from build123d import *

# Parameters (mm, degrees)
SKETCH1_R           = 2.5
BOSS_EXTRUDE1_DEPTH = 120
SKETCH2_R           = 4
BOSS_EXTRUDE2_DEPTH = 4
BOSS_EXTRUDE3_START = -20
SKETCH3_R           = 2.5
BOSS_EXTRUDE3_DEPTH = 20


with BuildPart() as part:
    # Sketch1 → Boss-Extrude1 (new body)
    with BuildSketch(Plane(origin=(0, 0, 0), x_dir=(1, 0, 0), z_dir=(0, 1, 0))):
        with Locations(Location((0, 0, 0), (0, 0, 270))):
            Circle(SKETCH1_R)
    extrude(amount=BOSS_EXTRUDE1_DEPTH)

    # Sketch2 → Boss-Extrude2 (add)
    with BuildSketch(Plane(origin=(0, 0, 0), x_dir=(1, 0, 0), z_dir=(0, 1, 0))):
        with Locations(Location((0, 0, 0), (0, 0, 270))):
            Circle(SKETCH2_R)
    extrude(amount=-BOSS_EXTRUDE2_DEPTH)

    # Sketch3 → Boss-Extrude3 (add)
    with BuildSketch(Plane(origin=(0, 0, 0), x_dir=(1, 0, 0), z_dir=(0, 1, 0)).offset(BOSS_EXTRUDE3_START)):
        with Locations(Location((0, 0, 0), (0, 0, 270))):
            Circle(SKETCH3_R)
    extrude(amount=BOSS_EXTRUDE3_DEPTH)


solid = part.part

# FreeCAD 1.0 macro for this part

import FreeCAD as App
import Part
import Sketcher
from FreeCAD import Vector

doc = App.newDocument("Part")
params = doc.addObject("Spreadsheet::Sheet", "Params")
for row, (alias, value) in enumerate([
    ("sketch1_diameter", "5 mm"),
    ("pad1_length", "120 mm"),
    ("sketch2_diameter", "8 mm"),
    ("pad2_length", "4 mm"),
    ("sketch3_diameter", "5 mm"),
    ("pad3_length", "20 mm"),
], start=1):
    params.set(f"A{row}", alias)
    params.set(f"B{row}", "=" + value)
    params.setAlias(f"B{row}", alias)

body = doc.addObject("PartDesign::Body", "Body")

# Sketch on XZ plane
sketch1 = body.newObject("Sketcher::SketchObject", "Sketch")
sketch1.AttachmentSupport = (doc.getObject("XZ_Plane"), [""])
sketch1.MapMode = "FlatFace"
sketch1.addGeometry(Part.Circle(Vector(0, 0, 0), Vector(0, 0, 1), 2.5), False)
sketch1.addConstraint([
    Sketcher.Constraint("Coincident", 0, 3, -1, 1),
    Sketcher.Constraint("Diameter", 0, 5.0),
])
sketch1.setExpression("Constraints[1]", "Params.sketch1_diameter")
pad1 = body.newObject("PartDesign::Pad", "Pad")
pad1.Profile = sketch1
pad1.setExpression("Length", "Params.pad1_length")
pad1.Reversed = True

# Sketch on XZ plane
sketch2 = body.newObject("Sketcher::SketchObject", "Sketch001")
sketch2.AttachmentSupport = (doc.getObject("XZ_Plane"), [""])
sketch2.MapMode = "FlatFace"
sketch2.addGeometry(Part.Circle(Vector(0, 0, 0), Vector(0, 0, 1), 4), False)
sketch2.addConstraint([
    Sketcher.Constraint("Coincident", 0, 3, -1, 1),
    Sketcher.Constraint("Diameter", 0, 8.0),
])
sketch2.setExpression("Constraints[1]", "Params.sketch2_diameter")
pad2 = body.newObject("PartDesign::Pad", "Pad001")
pad2.Profile = sketch2
pad2.setExpression("Length", "Params.pad2_length")

# Sketch on XZ plane
sketch3 = body.newObject("Sketcher::SketchObject", "Sketch002")
sketch3.AttachmentSupport = (doc.getObject("XZ_Plane"), [""])
sketch3.MapMode = "FlatFace"
sketch3.AttachmentOffset = App.Placement(Vector(0, 0, 20), App.Rotation())
sketch3.addGeometry(Part.Circle(Vector(0, 0, 0), Vector(0, 0, 1), 2.5), False)
sketch3.addConstraint([
    Sketcher.Constraint("Coincident", 0, 3, -1, 1),
    Sketcher.Constraint("Diameter", 0, 5.0),
])
sketch3.setExpression("Constraints[1]", "Params.sketch3_diameter")
pad3 = body.newObject("PartDesign::Pad", "Pad002")
pad3.Profile = sketch3
pad3.setExpression("Length", "Params.pad3_length")
pad3.Reversed = True

doc.recompute()
